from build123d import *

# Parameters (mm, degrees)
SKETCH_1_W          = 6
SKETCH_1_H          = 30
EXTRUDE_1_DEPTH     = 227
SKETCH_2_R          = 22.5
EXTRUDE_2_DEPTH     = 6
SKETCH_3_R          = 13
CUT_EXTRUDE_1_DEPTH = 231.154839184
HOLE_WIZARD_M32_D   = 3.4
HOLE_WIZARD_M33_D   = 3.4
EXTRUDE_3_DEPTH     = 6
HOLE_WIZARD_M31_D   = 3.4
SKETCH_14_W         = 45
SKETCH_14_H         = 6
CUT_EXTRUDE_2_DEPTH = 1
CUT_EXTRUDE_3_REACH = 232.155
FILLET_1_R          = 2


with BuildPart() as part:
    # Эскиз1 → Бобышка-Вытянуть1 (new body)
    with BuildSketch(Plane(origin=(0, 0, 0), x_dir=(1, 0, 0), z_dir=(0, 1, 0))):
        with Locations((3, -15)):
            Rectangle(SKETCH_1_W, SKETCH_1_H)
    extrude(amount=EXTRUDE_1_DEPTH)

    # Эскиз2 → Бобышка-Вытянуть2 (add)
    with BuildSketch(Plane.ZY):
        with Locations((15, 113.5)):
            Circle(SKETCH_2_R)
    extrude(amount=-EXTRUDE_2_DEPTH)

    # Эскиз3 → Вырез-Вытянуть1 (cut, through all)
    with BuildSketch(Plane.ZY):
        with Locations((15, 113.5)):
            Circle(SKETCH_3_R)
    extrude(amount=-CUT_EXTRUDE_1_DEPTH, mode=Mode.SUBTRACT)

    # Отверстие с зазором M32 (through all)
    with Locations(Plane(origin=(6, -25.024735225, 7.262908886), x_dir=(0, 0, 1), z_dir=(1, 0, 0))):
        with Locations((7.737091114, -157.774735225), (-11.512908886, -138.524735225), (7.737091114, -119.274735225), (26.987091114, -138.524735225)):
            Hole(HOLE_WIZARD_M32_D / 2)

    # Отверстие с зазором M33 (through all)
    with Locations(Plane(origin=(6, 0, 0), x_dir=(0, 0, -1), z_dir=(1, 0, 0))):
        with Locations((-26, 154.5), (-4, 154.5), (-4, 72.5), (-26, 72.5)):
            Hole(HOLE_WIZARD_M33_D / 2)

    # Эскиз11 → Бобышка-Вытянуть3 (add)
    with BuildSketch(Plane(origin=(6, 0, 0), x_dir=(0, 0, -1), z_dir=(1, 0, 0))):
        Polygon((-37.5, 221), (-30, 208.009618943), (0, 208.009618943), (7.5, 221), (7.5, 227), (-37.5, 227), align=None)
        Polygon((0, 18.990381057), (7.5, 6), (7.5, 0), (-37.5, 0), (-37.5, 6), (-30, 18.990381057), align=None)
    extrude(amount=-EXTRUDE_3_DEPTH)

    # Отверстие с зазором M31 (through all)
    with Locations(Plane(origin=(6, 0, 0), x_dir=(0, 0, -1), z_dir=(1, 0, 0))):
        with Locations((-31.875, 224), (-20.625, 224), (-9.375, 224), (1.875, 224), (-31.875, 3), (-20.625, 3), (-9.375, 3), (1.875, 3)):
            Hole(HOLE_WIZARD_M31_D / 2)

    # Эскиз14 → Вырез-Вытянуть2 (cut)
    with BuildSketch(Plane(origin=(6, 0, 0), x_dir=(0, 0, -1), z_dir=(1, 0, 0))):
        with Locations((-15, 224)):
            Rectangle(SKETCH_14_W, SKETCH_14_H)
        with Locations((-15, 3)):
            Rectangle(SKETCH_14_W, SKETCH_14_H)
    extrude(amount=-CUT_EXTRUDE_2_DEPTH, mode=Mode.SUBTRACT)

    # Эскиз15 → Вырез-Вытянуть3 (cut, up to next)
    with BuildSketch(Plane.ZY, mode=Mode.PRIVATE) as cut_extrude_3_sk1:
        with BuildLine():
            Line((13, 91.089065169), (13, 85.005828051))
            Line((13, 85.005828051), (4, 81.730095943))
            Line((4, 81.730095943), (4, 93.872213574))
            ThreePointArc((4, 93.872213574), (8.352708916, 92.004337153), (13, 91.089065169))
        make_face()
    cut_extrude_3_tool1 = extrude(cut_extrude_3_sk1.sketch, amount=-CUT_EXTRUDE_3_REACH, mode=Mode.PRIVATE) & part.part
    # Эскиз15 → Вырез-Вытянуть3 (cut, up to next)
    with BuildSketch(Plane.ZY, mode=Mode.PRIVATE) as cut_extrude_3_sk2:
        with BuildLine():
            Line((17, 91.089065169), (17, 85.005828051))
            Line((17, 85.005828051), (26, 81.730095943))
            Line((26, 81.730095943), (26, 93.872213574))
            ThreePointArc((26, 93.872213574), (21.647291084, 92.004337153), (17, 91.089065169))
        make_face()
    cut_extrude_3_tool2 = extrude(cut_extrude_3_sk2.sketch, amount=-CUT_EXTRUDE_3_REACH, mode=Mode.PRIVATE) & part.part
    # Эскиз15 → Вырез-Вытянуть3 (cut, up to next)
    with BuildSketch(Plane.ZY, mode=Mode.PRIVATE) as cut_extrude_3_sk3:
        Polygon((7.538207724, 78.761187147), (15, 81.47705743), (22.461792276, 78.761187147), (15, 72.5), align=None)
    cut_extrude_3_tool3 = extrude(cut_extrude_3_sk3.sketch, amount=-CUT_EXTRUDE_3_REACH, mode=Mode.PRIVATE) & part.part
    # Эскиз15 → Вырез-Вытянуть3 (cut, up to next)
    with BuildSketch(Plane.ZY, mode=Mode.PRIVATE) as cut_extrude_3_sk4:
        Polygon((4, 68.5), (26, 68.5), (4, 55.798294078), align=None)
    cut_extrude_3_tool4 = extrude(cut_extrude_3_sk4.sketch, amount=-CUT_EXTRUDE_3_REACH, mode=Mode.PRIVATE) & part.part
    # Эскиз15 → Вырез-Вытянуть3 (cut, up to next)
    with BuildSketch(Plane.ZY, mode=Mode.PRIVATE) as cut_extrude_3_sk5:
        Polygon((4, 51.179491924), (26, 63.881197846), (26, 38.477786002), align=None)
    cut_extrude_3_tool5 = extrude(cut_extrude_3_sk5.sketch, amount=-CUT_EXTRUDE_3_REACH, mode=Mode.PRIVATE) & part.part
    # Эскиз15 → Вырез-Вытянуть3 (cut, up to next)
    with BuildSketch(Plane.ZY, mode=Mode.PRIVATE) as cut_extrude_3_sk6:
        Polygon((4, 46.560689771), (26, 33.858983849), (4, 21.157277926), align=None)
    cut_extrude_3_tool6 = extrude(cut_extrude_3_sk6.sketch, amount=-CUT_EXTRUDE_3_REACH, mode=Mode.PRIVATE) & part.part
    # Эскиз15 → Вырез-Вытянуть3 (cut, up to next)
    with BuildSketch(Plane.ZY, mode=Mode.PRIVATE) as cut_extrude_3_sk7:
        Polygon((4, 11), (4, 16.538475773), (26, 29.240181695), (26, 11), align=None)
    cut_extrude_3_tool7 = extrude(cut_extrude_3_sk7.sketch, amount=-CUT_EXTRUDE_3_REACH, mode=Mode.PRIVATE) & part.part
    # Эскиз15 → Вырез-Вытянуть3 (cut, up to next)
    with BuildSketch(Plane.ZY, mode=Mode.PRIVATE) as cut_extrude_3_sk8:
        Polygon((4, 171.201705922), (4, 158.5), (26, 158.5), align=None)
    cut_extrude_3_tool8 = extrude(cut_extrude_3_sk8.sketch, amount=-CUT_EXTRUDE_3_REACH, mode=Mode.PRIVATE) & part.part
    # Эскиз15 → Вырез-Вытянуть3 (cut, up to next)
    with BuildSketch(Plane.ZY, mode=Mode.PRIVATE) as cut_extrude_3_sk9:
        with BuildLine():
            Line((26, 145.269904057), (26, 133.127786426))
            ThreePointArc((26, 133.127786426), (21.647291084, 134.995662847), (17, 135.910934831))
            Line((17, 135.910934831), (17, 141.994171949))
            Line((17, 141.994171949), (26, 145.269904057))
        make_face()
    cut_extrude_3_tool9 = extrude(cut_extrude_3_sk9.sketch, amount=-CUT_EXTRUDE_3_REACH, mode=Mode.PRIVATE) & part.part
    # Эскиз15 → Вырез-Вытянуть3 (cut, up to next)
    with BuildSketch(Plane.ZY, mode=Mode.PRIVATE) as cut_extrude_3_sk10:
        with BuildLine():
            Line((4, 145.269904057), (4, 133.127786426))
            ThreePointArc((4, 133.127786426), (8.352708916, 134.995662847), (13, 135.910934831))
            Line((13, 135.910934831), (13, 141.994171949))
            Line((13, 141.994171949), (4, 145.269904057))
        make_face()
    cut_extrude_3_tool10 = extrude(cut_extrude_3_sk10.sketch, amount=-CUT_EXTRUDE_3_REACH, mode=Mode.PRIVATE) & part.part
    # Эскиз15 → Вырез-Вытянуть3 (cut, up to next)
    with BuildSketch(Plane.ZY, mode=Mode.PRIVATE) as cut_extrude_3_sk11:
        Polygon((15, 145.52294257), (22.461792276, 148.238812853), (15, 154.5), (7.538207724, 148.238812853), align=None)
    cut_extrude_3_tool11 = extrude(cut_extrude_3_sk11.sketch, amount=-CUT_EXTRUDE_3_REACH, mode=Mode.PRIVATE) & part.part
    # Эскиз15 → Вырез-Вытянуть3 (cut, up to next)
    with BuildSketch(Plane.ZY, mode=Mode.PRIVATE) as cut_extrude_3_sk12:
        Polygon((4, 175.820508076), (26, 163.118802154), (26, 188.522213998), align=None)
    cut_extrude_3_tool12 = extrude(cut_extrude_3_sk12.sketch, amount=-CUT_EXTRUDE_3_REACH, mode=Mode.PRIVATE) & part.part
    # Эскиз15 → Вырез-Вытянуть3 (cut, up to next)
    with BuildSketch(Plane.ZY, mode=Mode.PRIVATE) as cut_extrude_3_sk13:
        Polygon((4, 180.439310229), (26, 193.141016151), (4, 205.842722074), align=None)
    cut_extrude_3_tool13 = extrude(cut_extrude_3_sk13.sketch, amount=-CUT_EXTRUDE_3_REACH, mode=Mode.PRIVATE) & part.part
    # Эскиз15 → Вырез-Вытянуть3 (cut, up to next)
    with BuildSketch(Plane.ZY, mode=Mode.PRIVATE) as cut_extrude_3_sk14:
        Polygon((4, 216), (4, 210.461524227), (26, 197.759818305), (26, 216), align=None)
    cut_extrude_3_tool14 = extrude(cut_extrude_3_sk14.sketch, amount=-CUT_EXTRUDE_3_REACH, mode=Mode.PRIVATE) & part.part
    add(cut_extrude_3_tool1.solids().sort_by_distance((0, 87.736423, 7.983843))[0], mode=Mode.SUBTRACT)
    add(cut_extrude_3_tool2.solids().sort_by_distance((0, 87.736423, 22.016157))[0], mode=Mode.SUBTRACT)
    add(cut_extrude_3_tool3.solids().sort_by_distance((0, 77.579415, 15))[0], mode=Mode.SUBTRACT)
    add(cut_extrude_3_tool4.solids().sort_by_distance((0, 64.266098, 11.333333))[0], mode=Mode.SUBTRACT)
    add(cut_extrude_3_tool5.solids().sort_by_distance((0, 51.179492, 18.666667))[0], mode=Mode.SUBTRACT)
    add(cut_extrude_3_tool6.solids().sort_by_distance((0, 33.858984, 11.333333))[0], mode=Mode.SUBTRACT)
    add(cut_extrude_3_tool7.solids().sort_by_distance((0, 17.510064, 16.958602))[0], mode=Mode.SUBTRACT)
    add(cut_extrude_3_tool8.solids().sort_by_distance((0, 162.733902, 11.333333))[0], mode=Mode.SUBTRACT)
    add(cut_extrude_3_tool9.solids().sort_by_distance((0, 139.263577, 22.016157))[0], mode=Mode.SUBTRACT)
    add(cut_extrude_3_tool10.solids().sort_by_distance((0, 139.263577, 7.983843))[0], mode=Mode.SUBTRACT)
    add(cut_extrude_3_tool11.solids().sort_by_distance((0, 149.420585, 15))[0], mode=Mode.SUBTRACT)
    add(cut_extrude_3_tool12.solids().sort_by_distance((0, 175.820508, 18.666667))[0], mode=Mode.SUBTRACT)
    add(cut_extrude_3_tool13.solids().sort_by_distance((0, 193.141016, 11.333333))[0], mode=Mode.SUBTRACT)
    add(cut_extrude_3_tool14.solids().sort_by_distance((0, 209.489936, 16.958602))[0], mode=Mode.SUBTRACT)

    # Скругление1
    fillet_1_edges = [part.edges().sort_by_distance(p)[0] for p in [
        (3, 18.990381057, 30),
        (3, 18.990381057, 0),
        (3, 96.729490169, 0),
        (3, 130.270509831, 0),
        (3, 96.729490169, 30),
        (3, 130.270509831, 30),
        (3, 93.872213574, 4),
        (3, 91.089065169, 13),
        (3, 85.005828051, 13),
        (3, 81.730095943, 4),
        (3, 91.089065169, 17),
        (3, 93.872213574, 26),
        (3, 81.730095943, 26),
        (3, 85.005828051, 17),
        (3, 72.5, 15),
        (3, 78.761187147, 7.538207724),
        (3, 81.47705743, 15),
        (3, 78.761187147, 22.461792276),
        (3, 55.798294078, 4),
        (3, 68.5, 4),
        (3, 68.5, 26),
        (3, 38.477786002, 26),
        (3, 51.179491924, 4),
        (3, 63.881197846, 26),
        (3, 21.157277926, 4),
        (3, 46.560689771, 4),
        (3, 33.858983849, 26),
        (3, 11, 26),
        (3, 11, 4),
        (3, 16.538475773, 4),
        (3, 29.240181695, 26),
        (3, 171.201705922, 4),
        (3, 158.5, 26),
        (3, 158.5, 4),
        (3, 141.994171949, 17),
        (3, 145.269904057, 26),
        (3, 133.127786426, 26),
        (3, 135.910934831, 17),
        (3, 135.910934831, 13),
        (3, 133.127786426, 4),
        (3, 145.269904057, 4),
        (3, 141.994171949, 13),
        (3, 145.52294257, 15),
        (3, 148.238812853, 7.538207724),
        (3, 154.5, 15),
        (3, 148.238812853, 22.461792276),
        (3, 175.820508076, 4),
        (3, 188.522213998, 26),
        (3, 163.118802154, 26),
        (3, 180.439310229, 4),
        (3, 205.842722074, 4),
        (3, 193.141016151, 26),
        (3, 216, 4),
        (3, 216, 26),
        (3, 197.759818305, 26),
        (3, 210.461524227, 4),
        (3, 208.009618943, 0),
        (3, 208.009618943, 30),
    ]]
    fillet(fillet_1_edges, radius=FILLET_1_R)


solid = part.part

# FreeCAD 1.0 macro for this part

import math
import FreeCAD as App
import Part
import Sketcher
Q = App.Units.Quantity


def edges_at(feature, points):
    """Names of the edges that pass closest to the given points."""
    edges = feature.Shape.Edges
    near = lambda p: min(range(len(edges)), key=lambda i: edges[i].distToShape(Part.Vertex(*p))[0])
    return sorted({f"Edge{near(p) + 1}" for p in points})


def add_polygon(sketch, points):
    """Adds a closed chain of lines whose ends are joined by coincident constraints."""
    first, n = sketch.GeometryCount, len(points)
    for a, b in zip(points, points[1:] + points[:1]):
        sketch.addGeometry(Part.LineSegment(App.Vector(*a, 0), App.Vector(*b, 0)), False)
    for i in range(n):
        sketch.addConstraint(Sketcher.Constraint("Coincident", first + i, 2, first + (i + 1) % n, 1))

doc = App.newDocument("Part")
params = doc.addObject("Spreadsheet::Sheet", "Params")
for row, (alias, value) in enumerate([
    ("sketch1_width", "6 mm"),
    ("sketch1_height", "30 mm"),
    ("pad1_length", "227 mm"),
    ("sketch2_diameter", "45 mm"),
    ("pad2_length", "6 mm"),
    ("sketch3_diameter", "26 mm"),
    ("sketch4_diameter", "3.4 mm"),
    ("hole_diameter", "3.4 mm"),
    ("sketch5_diameter", "3.4 mm"),
    ("hole2_diameter", "3.4 mm"),
    ("sketch6_width", "6 mm"),
    ("sketch6_height", "30 mm"),
    ("sketch6_height2", "45 mm"),
    ("pad3_length", "6 mm"),
    ("sketch7_diameter", "3.4 mm"),
    ("hole3_diameter", "3.4 mm"),
    ("sketch8_width", "6 mm"),
    ("sketch8_height", "45 mm"),
    ("pocket2_length", "1 mm"),
    ("sketch9_radius", "22.5 mm"),
    ("sketch10_radius", "22.5 mm"),
    ("sketch12_height", "22 mm"),
    ("sketch15_height", "22 mm"),
    ("sketch16_height", "22 mm"),
    ("sketch17_radius", "22.5 mm"),
    ("sketch18_radius", "22.5 mm"),
    ("sketch22_height", "22 mm"),
    ("fillet_radius", "2 mm"),
], start=1):
    params.set(f"A{row}", alias)
    params.set(f"B{row}", "=" + value)
    params.setAlias(f"B{row}", alias)

body = doc.addObject("PartDesign::Body", "Body")

# Sketch on XZ plane
sketch1 = body.newObject("Sketcher::SketchObject", "Sketch")
sketch1.AttachmentSupport = (doc.getObject("XZ_Plane"), [""])
sketch1.MapMode = "FlatFace"
add_polygon(sketch1, [(0, 0), (0, 30), (6, 30), (6, 0)])  # lines 0-3
sketch1.addConstraint([
    Sketcher.Constraint("Vertical", 0),
    Sketcher.Constraint("Horizontal", 1),
    Sketcher.Constraint("Vertical", 2),
    Sketcher.Constraint("Horizontal", 3),
    Sketcher.Constraint("Coincident", 3, 2, -1, 1),
    Sketcher.Constraint("DistanceX", 1, 1, 1, 2, Q("6 mm")),
    Sketcher.Constraint("DistanceY", 0, 1, 0, 2, Q("30 mm")),
])
sketch1.setExpression("Constraints[9]", "Params.sketch1_width")
sketch1.setExpression("Constraints[10]", "Params.sketch1_height")
pad1 = body.newObject("PartDesign::Pad", "Pad")
pad1.Profile = sketch1
pad1.setExpression("Length", "Params.pad1_length")
pad1.Reversed = True

# Sketch on YZ plane
sketch2 = body.newObject("Sketcher::SketchObject", "Sketch001")
sketch2.AttachmentSupport = (doc.getObject("YZ_Plane"), [""])
sketch2.MapMode = "FlatFace"
sketch2.addGeometry(Part.Circle(App.Vector(114, 15, 0), App.Vector(0, 0, 1), 22), False)
sketch2.addConstraint([
    Sketcher.Constraint("Diameter", 0, Q("45 mm")),
    Sketcher.Constraint("DistanceY", -1, 1, 0, 3, Q("15 mm")),
    Sketcher.Constraint("DistanceX", -1, 1, 0, 3, Q("113.5 mm")),
])
sketch2.setExpression("Constraints[0]", "Params.sketch2_diameter")
pad2 = body.newObject("PartDesign::Pad", "Pad001")
pad2.Profile = sketch2
pad2.setExpression("Length", "Params.pad2_length")

# Sketch on YZ plane
sketch3 = body.newObject("Sketcher::SketchObject", "Sketch002")
sketch3.AttachmentSupport = (doc.getObject("YZ_Plane"), [""])
sketch3.MapMode = "FlatFace"
sketch3.addGeometry(Part.Circle(App.Vector(114, 15, 0), App.Vector(0, 0, 1), 13), False)
sketch3.addConstraint([
    Sketcher.Constraint("Diameter", 0, Q("26 mm")),
    Sketcher.Constraint("DistanceY", -1, 1, 0, 3, Q("15 mm")),
    Sketcher.Constraint("DistanceX", -1, 1, 0, 3, Q("113.5 mm")),
])
sketch3.setExpression("Constraints[0]", "Params.sketch3_diameter")
pocket1 = body.newObject("PartDesign::Pocket", "Pocket")
pocket1.Profile = sketch3
pocket1.Type = "ThroughAll"
pocket1.Reversed = True

# Sketch on YZ plane
sketch4 = body.newObject("Sketcher::SketchObject", "Sketch003")
sketch4.AttachmentSupport = (doc.getObject("YZ_Plane"), [""])
sketch4.MapMode = "FlatFace"
sketch4.AttachmentOffset = App.Placement(App.Vector(0, 0, 6), App.Rotation())
sketch4.addGeometry([
    Part.Circle(App.Vector(132.8, 15, 0), App.Vector(0, 0, 1), 1.7),
    Part.Circle(App.Vector(113.5, -4.2, 0), App.Vector(0, 0, 1), 1.7),
    Part.Circle(App.Vector(94.2, 15, 0), App.Vector(0, 0, 1), 1.7),
    Part.Circle(App.Vector(113.5, 34.2, 0), App.Vector(0, 0, 1), 1.7),
], False)
sketch4.addConstraint([
    Sketcher.Constraint("Equal", 0, 1),
    Sketcher.Constraint("Equal", 1, 2),
    Sketcher.Constraint("Equal", 2, 3),
    Sketcher.Constraint("Horizontal", 0, 3, 2, 3),
    Sketcher.Constraint("Vertical", 1, 3, 3, 3),
    Sketcher.Constraint("Diameter", 0, Q("3.4 mm")),
    Sketcher.Constraint("DistanceY", -1, 1, 0, 3, Q("15 mm")),
    Sketcher.Constraint("DistanceX", -1, 1, 1, 3, Q("113.5 mm")),
    Sketcher.Constraint("DistanceX", 2, 3, 0, 3, Q("38.5 mm")),
    Sketcher.Constraint("DistanceY", 1, 3, 3, 3, Q("38.5 mm")),
    Sketcher.Constraint("DistanceX", -1, 1, 0, 3, Q("132.75 mm")),
    Sketcher.Constraint("DistanceY", 1, 3, -1, 1, Q("4.25 mm")),
])
sketch4.setExpression("Constraints[5]", "Params.sketch4_diameter")
doc.recompute()
hole = body.newObject("PartDesign::Hole", "Hole")
hole.Profile = sketch4
hole.ThreadType = "None"
hole.setExpression("Diameter", "Params.hole_diameter")
hole.DepthType = "ThroughAll"

# Sketch on YZ plane
sketch5 = body.newObject("Sketcher::SketchObject", "Sketch004")
sketch5.AttachmentSupport = (doc.getObject("YZ_Plane"), [""])
sketch5.MapMode = "FlatFace"
sketch5.AttachmentOffset = App.Placement(App.Vector(0, 0, 6), App.Rotation())
sketch5.addGeometry([
    Part.Circle(App.Vector(154.5, 26, 0), App.Vector(0, 0, 1), 1.7),
    Part.Circle(App.Vector(154.5, 4, 0), App.Vector(0, 0, 1), 1.7),
    Part.Circle(App.Vector(72.5, 4, 0), App.Vector(0, 0, 1), 1.7),
    Part.Circle(App.Vector(72.5, 26, 0), App.Vector(0, 0, 1), 1.7),
], False)
sketch5.addConstraint([
    Sketcher.Constraint("Equal", 0, 1),
    Sketcher.Constraint("Equal", 1, 2),
    Sketcher.Constraint("Equal", 2, 3),
    Sketcher.Constraint("Horizontal", 1, 3, 2, 3),
    Sketcher.Constraint("Horizontal", 0, 3, 3, 3),
    Sketcher.Constraint("Vertical", 0, 3, 1, 3),
    Sketcher.Constraint("Vertical", 2, 3, 3, 3),
    Sketcher.Constraint("Diameter", 0, Q("3.4 mm")),
    Sketcher.Constraint("DistanceY", -1, 1, 0, 3, Q("26 mm")),
    Sketcher.Constraint("DistanceY", -1, 1, 1, 3, Q("4 mm")),
    Sketcher.Constraint("DistanceX", 2, 3, 1, 3, Q("82 mm")),
    Sketcher.Constraint("DistanceX", -1, 1, 0, 3, Q("154.5 mm")),
])
sketch5.setExpression("Constraints[7]", "Params.sketch5_diameter")
doc.recompute()
hole2 = body.newObject("PartDesign::Hole", "Hole001")
hole2.Profile = sketch5
hole2.ThreadType = "None"
hole2.setExpression("Diameter", "Params.hole2_diameter")
hole2.DepthType = "ThroughAll"

# Sketch on YZ plane
sketch6 = body.newObject("Sketcher::SketchObject", "Sketch005")
sketch6.AttachmentSupport = (doc.getObject("YZ_Plane"), [""])
sketch6.MapMode = "FlatFace"
sketch6.AttachmentOffset = App.Placement(App.Vector(0, 0, 6), App.Rotation())
add_polygon(sketch6, [(221, 38), (208, 30), (208, 0), (221, -8), (227, -8), (227, 38)])  # lines 0-5
add_polygon(sketch6, [(6, -8), (19, 0), (19, 30), (6, 38), (0, 38), (0, -8)])  # lines 6-11
sketch6.addConstraint([
    Sketcher.Constraint("Vertical", 1),
    Sketcher.Constraint("Horizontal", 3),
    Sketcher.Constraint("Vertical", 4),
    Sketcher.Constraint("Horizontal", 5),
    Sketcher.Constraint("Vertical", 7),
    Sketcher.Constraint("Horizontal", 9),
    Sketcher.Constraint("Vertical", 10),
    Sketcher.Constraint("Horizontal", 11),
    Sketcher.Constraint("PointOnObject", 1, 2, -1),
    Sketcher.Constraint("PointOnObject", 6, 2, -1),
    Sketcher.Constraint("PointOnObject", 9, 2, -2),
    Sketcher.Constraint("Parallel", 0, 6),
    Sketcher.Constraint("Parallel", 2, 8),
    Sketcher.Constraint("Horizontal", 0, 2, 7, 2),
    Sketcher.Constraint("Horizontal", 5, 2, 8, 2),
    Sketcher.Constraint("Horizontal", 3, 2, 10, 2),
    Sketcher.Constraint("Vertical", 2, 2, 5, 2),
    Sketcher.Constraint("Vertical", 8, 2, 11, 2),
    Sketcher.Constraint("Equal", 5, 9),
    Sketcher.Constraint("DistanceX", 3, 1, 3, 2, Q("6 mm")),
    Sketcher.Constraint("DistanceY", 1, 2, 1, 1, Q("30 mm")),
    Sketcher.Constraint("DistanceY", 4, 1, 4, 2, Q("45 mm")),
    Sketcher.Constraint("Angle", 0, Q("-150 deg")),
    Sketcher.Constraint("DistanceX", -1, 1, 2, 2, Q("221 mm")),
])
sketch6.setExpression("Constraints[31]", "Params.sketch6_width")
sketch6.setExpression("Constraints[32]", "Params.sketch6_height")
sketch6.setExpression("Constraints[33]", "Params.sketch6_height2")
pad3 = body.newObject("PartDesign::Pad", "Pad002")
pad3.Profile = sketch6
pad3.setExpression("Length", "Params.pad3_length")
pad3.Reversed = True

# Sketch on YZ plane
sketch7 = body.newObject("Sketcher::SketchObject", "Sketch006")
sketch7.AttachmentSupport = (doc.getObject("YZ_Plane"), [""])
sketch7.MapMode = "FlatFace"
sketch7.AttachmentOffset = App.Placement(App.Vector(0, 0, 6), App.Rotation())
sketch7.addGeometry([
    Part.Circle(App.Vector(224, 31.9, 0), App.Vector(0, 0, 1), 1.7),  # 0
    Part.Circle(App.Vector(224, 20.6, 0), App.Vector(0, 0, 1), 1.7),  # 1
    Part.Circle(App.Vector(224, 9.4, 0), App.Vector(0, 0, 1), 1.7),  # 2
    Part.Circle(App.Vector(224, -1.9, 0), App.Vector(0, 0, 1), 1.7),  # 3
    Part.Circle(App.Vector(3, 31.9, 0), App.Vector(0, 0, 1), 1.7),  # 4
    Part.Circle(App.Vector(3, 20.6, 0), App.Vector(0, 0, 1), 1.7),  # 5
    Part.Circle(App.Vector(3, 9.4, 0), App.Vector(0, 0, 1), 1.7),  # 6
    Part.Circle(App.Vector(3, -1.9, 0), App.Vector(0, 0, 1), 1.7),  # 7
], False)
sketch7.addConstraint([
    Sketcher.Constraint("Equal", 0, 1),
    Sketcher.Constraint("Equal", 1, 2),
    Sketcher.Constraint("Equal", 2, 3),
    Sketcher.Constraint("Equal", 3, 4),
    Sketcher.Constraint("Equal", 4, 5),
    Sketcher.Constraint("Equal", 5, 6),
    Sketcher.Constraint("Equal", 6, 7),
    Sketcher.Constraint("Horizontal", 0, 3, 4, 3),
    Sketcher.Constraint("Horizontal", 1, 3, 5, 3),
    Sketcher.Constraint("Horizontal", 2, 3, 6, 3),
    Sketcher.Constraint("Horizontal", 3, 3, 7, 3),
    Sketcher.Constraint("Vertical", 0, 3, 1, 3),
    Sketcher.Constraint("Vertical", 1, 3, 2, 3),
    Sketcher.Constraint("Vertical", 2, 3, 3, 3),
    Sketcher.Constraint("Vertical", 4, 3, 5, 3),
    Sketcher.Constraint("Vertical", 5, 3, 6, 3),
    Sketcher.Constraint("Vertical", 6, 3, 7, 3),
    Sketcher.Constraint("Diameter", 0, Q("3.4 mm")),
    Sketcher.Constraint("DistanceX", -1, 1, 0, 3, Q("224 mm")),
    Sketcher.Constraint("DistanceX", -1, 1, 4, 3, Q("3 mm")),
    Sketcher.Constraint("DistanceY", 2, 3, 0, 3, Q("22.5 mm")),
    Sketcher.Constraint("DistanceY", 3, 3, 1, 3, Q("22.5 mm")),
    Sketcher.Constraint("DistanceY", 1, 3, 0, 3, Q("11.25 mm")),
    Sketcher.Constraint("DistanceY", -1, 1, 0, 3, Q("31.875 mm")),
])
sketch7.setExpression("Constraints[17]", "Params.sketch7_diameter")
doc.recompute()
hole3 = body.newObject("PartDesign::Hole", "Hole002")
hole3.Profile = sketch7
hole3.ThreadType = "None"
hole3.setExpression("Diameter", "Params.hole3_diameter")
hole3.DepthType = "ThroughAll"

# Sketch on YZ plane
sketch8 = body.newObject("Sketcher::SketchObject", "Sketch007")
sketch8.AttachmentSupport = (doc.getObject("YZ_Plane"), [""])
sketch8.MapMode = "FlatFace"
sketch8.AttachmentOffset = App.Placement(App.Vector(0, 0, 6), App.Rotation())
add_polygon(sketch8, [(227, 38), (221, 38), (221, -8), (227, -8)])  # lines 0-3
add_polygon(sketch8, [(6, 38), (0, 38), (0, -8), (6, -8)])  # lines 4-7
sketch8.addConstraint([
    Sketcher.Constraint("Horizontal", 0),
    Sketcher.Constraint("Vertical", 1),
    Sketcher.Constraint("Horizontal", 2),
    Sketcher.Constraint("Vertical", 3),
    Sketcher.Constraint("Horizontal", 4),
    Sketcher.Constraint("Vertical", 5),
    Sketcher.Constraint("Horizontal", 6),
    Sketcher.Constraint("Vertical", 7),
    Sketcher.Constraint("PointOnObject", 4, 2, -2),
    Sketcher.Constraint("Horizontal", 3, 2, 4, 2),
    Sketcher.Constraint("Horizontal", 2, 2, 5, 2),
    Sketcher.Constraint("Equal", 2, 4),
    Sketcher.Constraint("DistanceX", 0, 2, 0, 1, Q("6 mm")),
    Sketcher.Constraint("DistanceY", 1, 2, 1, 1, Q("45 mm")),
    Sketcher.Constraint("DistanceX", -1, 1, 0, 2, Q("221 mm")),
    Sketcher.Constraint("DistanceY", -1, 1, 0, 2, Q("37.5 mm")),
])
sketch8.setExpression("Constraints[20]", "Params.sketch8_width")
sketch8.setExpression("Constraints[21]", "Params.sketch8_height")
pocket2 = body.newObject("PartDesign::Pocket", "Pocket001")
pocket2.Profile = sketch8
pocket2.setExpression("Length", "Params.pocket2_length")

# Sketch on YZ plane
sketch9 = body.newObject("Sketcher::SketchObject", "Sketch008")
sketch9.AttachmentSupport = (doc.getObject("YZ_Plane"), [""])
sketch9.MapMode = "FlatFace"
sketch9.addGeometry([
    Part.LineSegment(App.Vector(85, 13, 0), App.Vector(91, 13, 0)),
    Part.ArcOfCircle(Part.Circle(App.Vector(114, 15, 0), App.Vector(0, 0, 1), 23), math.radians(-175), math.radians(-151)),
    Part.LineSegment(App.Vector(94, 4, 0), App.Vector(82, 4, 0)),
    Part.LineSegment(App.Vector(82, 4, 0), App.Vector(85, 13, 0)),
], False)
sketch9.addConstraint([
    Sketcher.Constraint("Coincident", 0, 2, 1, 1),
    Sketcher.Constraint("Coincident", 1, 2, 2, 1),
    Sketcher.Constraint("Coincident", 2, 2, 3, 1),
    Sketcher.Constraint("Coincident", 3, 2, 0, 1),
    Sketcher.Constraint("Horizontal", 0),
    Sketcher.Constraint("Horizontal", 2),
    Sketcher.Constraint("Radius", 1, Q("22.5 mm")),
    Sketcher.Constraint("Angle", 3, Q("70 deg")),
    Sketcher.Constraint("DistanceY", -1, 1, 1, 3, Q("15 mm")),
    Sketcher.Constraint("DistanceY", -1, 1, 0, 2, Q("13 mm")),
    Sketcher.Constraint("DistanceY", -1, 1, 1, 2, Q("4 mm")),
    Sketcher.Constraint("DistanceX", -1, 1, 1, 3, Q("113.5 mm")),
    Sketcher.Constraint("DistanceX", 0, 1, 0, 2, Q("6.083237 mm")),
])
sketch9.setExpression("Constraints[6]", "Params.sketch9_radius")
pocket3 = body.newObject("PartDesign::Pocket", "Pocket002")
pocket3.Profile = sketch9
pocket3.Type = "UpToFirst"
pocket3.Reversed = True

# Sketch on YZ plane
sketch10 = body.newObject("Sketcher::SketchObject", "Sketch009")
sketch10.AttachmentSupport = (doc.getObject("YZ_Plane"), [""])
sketch10.MapMode = "FlatFace"
sketch10.addGeometry([
    Part.LineSegment(App.Vector(91, 17, 0), App.Vector(85, 17, 0)),
    Part.LineSegment(App.Vector(85, 17, 0), App.Vector(82, 26, 0)),
    Part.LineSegment(App.Vector(82, 26, 0), App.Vector(94, 26, 0)),
    Part.ArcOfCircle(Part.Circle(App.Vector(114, 15, 0), App.Vector(0, 0, 1), 23), math.radians(151), math.radians(175)),
], False)
sketch10.addConstraint([
    Sketcher.Constraint("Coincident", 0, 2, 1, 1),
    Sketcher.Constraint("Coincident", 1, 2, 2, 1),
    Sketcher.Constraint("Coincident", 2, 2, 3, 1),
    Sketcher.Constraint("Coincident", 3, 2, 0, 1),
    Sketcher.Constraint("Horizontal", 0),
    Sketcher.Constraint("Horizontal", 2),
    Sketcher.Constraint("Radius", 3, Q("22.5 mm")),
    Sketcher.Constraint("Angle", 1, Q("110 deg")),
    Sketcher.Constraint("DistanceY", -1, 1, 3, 3, Q("15 mm")),
    Sketcher.Constraint("DistanceY", -1, 1, 0, 2, Q("17 mm")),
    Sketcher.Constraint("DistanceY", -1, 1, 1, 2, Q("26 mm")),
    Sketcher.Constraint("DistanceX", -1, 1, 3, 3, Q("113.5 mm")),
    Sketcher.Constraint("DistanceX", 0, 2, 0, 1, Q("6.083237 mm")),
])
sketch10.setExpression("Constraints[6]", "Params.sketch10_radius")
pocket4 = body.newObject("PartDesign::Pocket", "Pocket003")
pocket4.Profile = sketch10
pocket4.Type = "UpToFirst"
pocket4.Reversed = True

# Sketch on YZ plane
sketch11 = body.newObject("Sketcher::SketchObject", "Sketch010")
sketch11.AttachmentSupport = (doc.getObject("YZ_Plane"), [""])
sketch11.MapMode = "FlatFace"
add_polygon(sketch11, [(81, 15), (79, 8), (72, 15), (79, 22)])  # lines 0-3
sketch11.addConstraint([
    Sketcher.Constraint("Horizontal", 1, 2, 3, 2),
    Sketcher.Constraint("Vertical", 0, 2, 2, 2),
    Sketcher.Constraint("Equal", 1, 2),
    Sketcher.Constraint("Angle", 0, Q("-110 deg")),
    Sketcher.Constraint("Angle", 1, Q("130 deg")),
    Sketcher.Constraint("DistanceY", -1, 1, 1, 2, Q("15 mm")),
    Sketcher.Constraint("DistanceX", -1, 1, 1, 2, Q("72.5 mm")),
    Sketcher.Constraint("Distance", 1, Q("9.740678 mm")),
])
pocket5 = body.newObject("PartDesign::Pocket", "Pocket004")
pocket5.Profile = sketch11
pocket5.Type = "UpToFirst"
pocket5.Reversed = True

# Sketch on YZ plane
sketch12 = body.newObject("Sketcher::SketchObject", "Sketch011")
sketch12.AttachmentSupport = (doc.getObject("YZ_Plane"), [""])
sketch12.MapMode = "FlatFace"
add_polygon(sketch12, [(68, 26), (68, 4), (56, 4)])  # lines 0-2
sketch12.addConstraint([
    Sketcher.Constraint("Vertical", 0),
    Sketcher.Constraint("Horizontal", 1),
    Sketcher.Constraint("DistanceY", 0, 2, 0, 1, Q("22 mm")),
    Sketcher.Constraint("Angle", 2, Q("60 deg")),
    Sketcher.Constraint("DistanceY", -1, 1, 0, 2, Q("4 mm")),
    Sketcher.Constraint("DistanceX", -1, 1, 0, 2, Q("68.5 mm")),
])
sketch12.setExpression("Constraints[5]", "Params.sketch12_height")
pocket6 = body.newObject("PartDesign::Pocket", "Pocket005")
pocket6.Profile = sketch12
pocket6.Type = "UpToFirst"
pocket6.Reversed = True

# Sketch on YZ plane
sketch13 = body.newObject("Sketcher::SketchObject", "Sketch012")
sketch13.AttachmentSupport = (doc.getObject("YZ_Plane"), [""])
sketch13.MapMode = "FlatFace"
add_polygon(sketch13, [(64, 26), (51, 4), (38, 26)])  # lines 0-2
sketch13.addConstraint([
    Sketcher.Constraint("Horizontal", 2),
    Sketcher.Constraint("Equal", 0, 1),
    Sketcher.Constraint("Angle", 0, Q("-120 deg")),
    Sketcher.Constraint("DistanceY", -1, 1, 0, 2, Q("4 mm")),
    Sketcher.Constraint("DistanceY", -1, 1, 1, 2, Q("26 mm")),
    Sketcher.Constraint("DistanceX", -1, 1, 0, 2, Q("51.179492 mm")),
])
pocket7 = body.newObject("PartDesign::Pocket", "Pocket006")
pocket7.Profile = sketch13
pocket7.Type = "UpToFirst"
pocket7.Reversed = True

# Sketch on YZ plane
sketch14 = body.newObject("Sketcher::SketchObject", "Sketch013")
sketch14.AttachmentSupport = (doc.getObject("YZ_Plane"), [""])
sketch14.MapMode = "FlatFace"
add_polygon(sketch14, [(34, 26), (47, 4), (21, 4)])  # lines 0-2
sketch14.addConstraint([
    Sketcher.Constraint("Horizontal", 1),
    Sketcher.Constraint("Equal", 0, 2),
    Sketcher.Constraint("Angle", 0, Q("-60 deg")),
    Sketcher.Constraint("DistanceY", -1, 1, 0, 2, Q("4 mm")),
    Sketcher.Constraint("DistanceY", -1, 1, 2, 2, Q("26 mm")),
    Sketcher.Constraint("DistanceX", -1, 1, 0, 2, Q("46.56069 mm")),
])
pocket8 = body.newObject("PartDesign::Pocket", "Pocket007")
pocket8.Profile = sketch14
pocket8.Type = "UpToFirst"
pocket8.Reversed = True

# Sketch on YZ plane
sketch15 = body.newObject("Sketcher::SketchObject", "Sketch014")
sketch15.AttachmentSupport = (doc.getObject("YZ_Plane"), [""])
sketch15.MapMode = "FlatFace"
add_polygon(sketch15, [(17, 4), (11, 4), (11, 26), (29, 26)])  # lines 0-3
sketch15.addConstraint([
    Sketcher.Constraint("Horizontal", 0),
    Sketcher.Constraint("Vertical", 1),
    Sketcher.Constraint("Horizontal", 2),
    Sketcher.Constraint("DistanceY", 1, 1, 1, 2, Q("22 mm")),
    Sketcher.Constraint("Angle", 3, Q("-120 deg")),
    Sketcher.Constraint("DistanceX", -1, 1, 0, 2, Q("11 mm")),
    Sketcher.Constraint("DistanceY", -1, 1, 0, 2, Q("4 mm")),
    Sketcher.Constraint("DistanceX", 2, 1, 2, 2, Q("18.240182 mm")),
])
sketch15.setExpression("Constraints[7]", "Params.sketch15_height")
pocket9 = body.newObject("PartDesign::Pocket", "Pocket008")
pocket9.Profile = sketch15
pocket9.Type = "UpToFirst"
pocket9.Reversed = True

# Sketch on YZ plane
sketch16 = body.newObject("Sketcher::SketchObject", "Sketch015")
sketch16.AttachmentSupport = (doc.getObject("YZ_Plane"), [""])
sketch16.MapMode = "FlatFace"
add_polygon(sketch16, [(171, 4), (158, 4), (158, 26)])  # lines 0-2
sketch16.addConstraint([
    Sketcher.Constraint("Horizontal", 0),
    Sketcher.Constraint("Vertical", 1),
    Sketcher.Constraint("DistanceY", 1, 1, 1, 2, Q("22 mm")),
    Sketcher.Constraint("Angle", 2, Q("-60 deg")),
    Sketcher.Constraint("DistanceY", -1, 1, 0, 2, Q("4 mm")),
    Sketcher.Constraint("DistanceX", -1, 1, 0, 2, Q("158.5 mm")),
])
sketch16.setExpression("Constraints[5]", "Params.sketch16_height")
pocket10 = body.newObject("PartDesign::Pocket", "Pocket009")
pocket10.Profile = sketch16
pocket10.Type = "UpToFirst"
pocket10.Reversed = True

# Sketch on YZ plane
sketch17 = body.newObject("Sketcher::SketchObject", "Sketch016")
sketch17.AttachmentSupport = (doc.getObject("YZ_Plane"), [""])
sketch17.MapMode = "FlatFace"
sketch17.addGeometry([
    Part.LineSegment(App.Vector(133, 26, 0), App.Vector(145, 26, 0)),
    Part.LineSegment(App.Vector(145, 26, 0), App.Vector(142, 17, 0)),
    Part.LineSegment(App.Vector(142, 17, 0), App.Vector(136, 17, 0)),
    Part.ArcOfCircle(Part.Circle(App.Vector(113, 15, 0), App.Vector(0, 0, 1), 23), math.radians(5), math.radians(29)),
], False)
sketch17.addConstraint([
    Sketcher.Constraint("Coincident", 0, 2, 1, 1),
    Sketcher.Constraint("Coincident", 1, 2, 2, 1),
    Sketcher.Constraint("Coincident", 2, 2, 3, 1),
    Sketcher.Constraint("Coincident", 3, 2, 0, 1),
    Sketcher.Constraint("Horizontal", 0),
    Sketcher.Constraint("Horizontal", 2),
    Sketcher.Constraint("Radius", 3, Q("22.5 mm")),
    Sketcher.Constraint("Angle", 1, Q("-110 deg")),
    Sketcher.Constraint("DistanceY", -1, 1, 3, 3, Q("15 mm")),
    Sketcher.Constraint("DistanceY", -1, 1, 0, 2, Q("26 mm")),
    Sketcher.Constraint("DistanceY", -1, 1, 1, 2, Q("17 mm")),
    Sketcher.Constraint("DistanceX", -1, 1, 3, 3, Q("113.5 mm")),
    Sketcher.Constraint("DistanceX", 0, 1, 0, 2, Q("12.142118 mm")),
])
sketch17.setExpression("Constraints[6]", "Params.sketch17_radius")
pocket11 = body.newObject("PartDesign::Pocket", "Pocket010")
pocket11.Profile = sketch17
pocket11.Type = "UpToFirst"
pocket11.Reversed = True

# Sketch on YZ plane
sketch18 = body.newObject("Sketcher::SketchObject", "Sketch017")
sketch18.AttachmentSupport = (doc.getObject("YZ_Plane"), [""])
sketch18.MapMode = "FlatFace"
sketch18.addGeometry([
    Part.LineSegment(App.Vector(145, 4, 0), App.Vector(133, 4, 0)),
    Part.ArcOfCircle(Part.Circle(App.Vector(113, 15, 0), App.Vector(0, 0, 1), 23), math.radians(-29), math.radians(-5)),
    Part.LineSegment(App.Vector(136, 13, 0), App.Vector(142, 13, 0)),
    Part.LineSegment(App.Vector(142, 13, 0), App.Vector(145, 4, 0)),
], False)
sketch18.addConstraint([
    Sketcher.Constraint("Coincident", 0, 2, 1, 1),
    Sketcher.Constraint("Coincident", 1, 2, 2, 1),
    Sketcher.Constraint("Coincident", 2, 2, 3, 1),
    Sketcher.Constraint("Coincident", 3, 2, 0, 1),
    Sketcher.Constraint("Horizontal", 0),
    Sketcher.Constraint("Horizontal", 2),
    Sketcher.Constraint("Radius", 1, Q("22.5 mm")),
    Sketcher.Constraint("Angle", 3, Q("-70 deg")),
    Sketcher.Constraint("DistanceY", -1, 1, 1, 3, Q("15 mm")),
    Sketcher.Constraint("DistanceY", -1, 1, 0, 2, Q("4 mm")),
    Sketcher.Constraint("DistanceY", -1, 1, 1, 2, Q("13 mm")),
    Sketcher.Constraint("DistanceX", -1, 1, 1, 3, Q("113.5 mm")),
    Sketcher.Constraint("DistanceX", 0, 2, 0, 1, Q("12.142118 mm")),
])
sketch18.setExpression("Constraints[6]", "Params.sketch18_radius")
pocket12 = body.newObject("PartDesign::Pocket", "Pocket011")
pocket12.Profile = sketch18
pocket12.Type = "UpToFirst"
pocket12.Reversed = True

# Sketch on YZ plane
sketch19 = body.newObject("Sketcher::SketchObject", "Sketch018")
sketch19.AttachmentSupport = (doc.getObject("YZ_Plane"), [""])
sketch19.MapMode = "FlatFace"
add_polygon(sketch19, [(146, 15), (148, 22), (154, 15), (148, 8)])  # lines 0-3
sketch19.addConstraint([
    Sketcher.Constraint("Horizontal", 1, 2, 3, 2),
    Sketcher.Constraint("Vertical", 0, 2, 2, 2),
    Sketcher.Constraint("Equal", 1, 2),
    Sketcher.Constraint("Angle", 0, Q("70 deg")),
    Sketcher.Constraint("Angle", 1, Q("-50 deg")),
    Sketcher.Constraint("DistanceY", -1, 1, 1, 2, Q("15 mm")),
    Sketcher.Constraint("DistanceX", -1, 1, 1, 2, Q("154.5 mm")),
    Sketcher.Constraint("Distance", 1, Q("9.740678 mm")),
])
pocket13 = body.newObject("PartDesign::Pocket", "Pocket012")
pocket13.Profile = sketch19
pocket13.Type = "UpToFirst"
pocket13.Reversed = True

# Sketch on YZ plane
sketch20 = body.newObject("Sketcher::SketchObject", "Sketch019")
sketch20.AttachmentSupport = (doc.getObject("YZ_Plane"), [""])
sketch20.MapMode = "FlatFace"
add_polygon(sketch20, [(176, 4), (163, 26), (189, 26)])  # lines 0-2
sketch20.addConstraint([
    Sketcher.Constraint("Horizontal", 1),
    Sketcher.Constraint("Equal", 0, 2),
    Sketcher.Constraint("Angle", 0, Q("120 deg")),
    Sketcher.Constraint("DistanceY", -1, 1, 0, 2, Q("26 mm")),
    Sketcher.Constraint("DistanceY", -1, 1, 2, 2, Q("4 mm")),
    Sketcher.Constraint("DistanceX", -1, 1, 2, 2, Q("175.820508 mm")),
])
pocket14 = body.newObject("PartDesign::Pocket", "Pocket013")
pocket14.Profile = sketch20
pocket14.Type = "UpToFirst"
pocket14.Reversed = True

# Sketch on YZ plane
sketch21 = body.newObject("Sketcher::SketchObject", "Sketch020")
sketch21.AttachmentSupport = (doc.getObject("YZ_Plane"), [""])
sketch21.MapMode = "FlatFace"
add_polygon(sketch21, [(180, 4), (193, 26), (206, 4)])  # lines 0-2
sketch21.addConstraint([
    Sketcher.Constraint("Horizontal", 2),
    Sketcher.Constraint("Equal", 0, 1),
    Sketcher.Constraint("Angle", 0, Q("60 deg")),
    Sketcher.Constraint("DistanceY", -1, 1, 0, 2, Q("26 mm")),
    Sketcher.Constraint("DistanceY", -1, 1, 1, 2, Q("4 mm")),
    Sketcher.Constraint("DistanceX", -1, 1, 2, 2, Q("180.43931 mm")),
])
pocket15 = body.newObject("PartDesign::Pocket", "Pocket014")
pocket15.Profile = sketch21
pocket15.Type = "UpToFirst"
pocket15.Reversed = True

# Sketch on YZ plane
sketch22 = body.newObject("Sketcher::SketchObject", "Sketch021")
sketch22.AttachmentSupport = (doc.getObject("YZ_Plane"), [""])
sketch22.MapMode = "FlatFace"
add_polygon(sketch22, [(216, 4), (210, 4), (198, 26), (216, 26)])  # lines 0-3
sketch22.addConstraint([
    Sketcher.Constraint("Horizontal", 0),
    Sketcher.Constraint("Horizontal", 2),
    Sketcher.Constraint("Vertical", 3),
    Sketcher.Constraint("DistanceY", 3, 2, 3, 1, Q("22 mm")),
    Sketcher.Constraint("Angle", 1, Q("120 deg")),
    Sketcher.Constraint("DistanceY", -1, 1, 0, 2, Q("4 mm")),
    Sketcher.Constraint("DistanceX", -1, 1, 2, 2, Q("216 mm")),
    Sketcher.Constraint("DistanceX", 2, 1, 2, 2, Q("18.240182 mm")),
])
sketch22.setExpression("Constraints[7]", "Params.sketch22_height")
pocket16 = body.newObject("PartDesign::Pocket", "Pocket015")
pocket16.Profile = sketch22
pocket16.Type = "UpToFirst"
pocket16.Reversed = True
doc.recompute()

fillet = body.newObject("PartDesign::Fillet", "Fillet")
fillet.Base = (pocket16, edges_at(pocket16, [
    (3, 18.99, 30),
    (3, 18.99, 0),
    (3, 96.729, 0),
    (3, 130.271, 0),
    (3, 96.729, 30),
    (3, 130.271, 30),
    (3, 93.872, 4),
    (3, 91.089, 13),
    (3, 85.006, 13),
    (3, 81.73, 4),
    (3, 91.089, 17),
    (3, 93.872, 26),
    (3, 81.73, 26),
    (3, 85.006, 17),
    (3, 72.5, 15),
    (3, 78.761, 7.538),
    (3, 81.477, 15),
    (3, 78.761, 22.462),
    (3, 55.798, 4),
    (3, 68.5, 4),
    (3, 68.5, 26),
    (3, 38.478, 26),
    (3, 51.179, 4),
    (3, 63.881, 26),
    (3, 21.157, 4),
    (3, 46.561, 4),
    (3, 33.859, 26),
    (3, 11, 26),
    (3, 11, 4),
    (3, 16.538, 4),
    (3, 29.24, 26),
    (3, 171.202, 4),
    (3, 158.5, 26),
    (3, 158.5, 4),
    (3, 141.994, 17),
    (3, 145.27, 26),
    (3, 133.128, 26),
    (3, 135.911, 17),
    (3, 135.911, 13),
    (3, 133.128, 4),
    (3, 145.27, 4),
    (3, 141.994, 13),
    (3, 145.523, 15),
    (3, 148.239, 7.538),
    (3, 154.5, 15),
    (3, 148.239, 22.462),
    (3, 175.821, 4),
    (3, 188.522, 26),
    (3, 163.119, 26),
    (3, 180.439, 4),
    (3, 205.843, 4),
    (3, 193.141, 26),
    (3, 216, 4),
    (3, 216, 26),
    (3, 197.76, 26),
    (3, 210.462, 4),
    (3, 208.01, 0),
    (3, 208.01, 30),
]))
fillet.setExpression("Radius", "Params.fillet_radius")

doc.recompute()
